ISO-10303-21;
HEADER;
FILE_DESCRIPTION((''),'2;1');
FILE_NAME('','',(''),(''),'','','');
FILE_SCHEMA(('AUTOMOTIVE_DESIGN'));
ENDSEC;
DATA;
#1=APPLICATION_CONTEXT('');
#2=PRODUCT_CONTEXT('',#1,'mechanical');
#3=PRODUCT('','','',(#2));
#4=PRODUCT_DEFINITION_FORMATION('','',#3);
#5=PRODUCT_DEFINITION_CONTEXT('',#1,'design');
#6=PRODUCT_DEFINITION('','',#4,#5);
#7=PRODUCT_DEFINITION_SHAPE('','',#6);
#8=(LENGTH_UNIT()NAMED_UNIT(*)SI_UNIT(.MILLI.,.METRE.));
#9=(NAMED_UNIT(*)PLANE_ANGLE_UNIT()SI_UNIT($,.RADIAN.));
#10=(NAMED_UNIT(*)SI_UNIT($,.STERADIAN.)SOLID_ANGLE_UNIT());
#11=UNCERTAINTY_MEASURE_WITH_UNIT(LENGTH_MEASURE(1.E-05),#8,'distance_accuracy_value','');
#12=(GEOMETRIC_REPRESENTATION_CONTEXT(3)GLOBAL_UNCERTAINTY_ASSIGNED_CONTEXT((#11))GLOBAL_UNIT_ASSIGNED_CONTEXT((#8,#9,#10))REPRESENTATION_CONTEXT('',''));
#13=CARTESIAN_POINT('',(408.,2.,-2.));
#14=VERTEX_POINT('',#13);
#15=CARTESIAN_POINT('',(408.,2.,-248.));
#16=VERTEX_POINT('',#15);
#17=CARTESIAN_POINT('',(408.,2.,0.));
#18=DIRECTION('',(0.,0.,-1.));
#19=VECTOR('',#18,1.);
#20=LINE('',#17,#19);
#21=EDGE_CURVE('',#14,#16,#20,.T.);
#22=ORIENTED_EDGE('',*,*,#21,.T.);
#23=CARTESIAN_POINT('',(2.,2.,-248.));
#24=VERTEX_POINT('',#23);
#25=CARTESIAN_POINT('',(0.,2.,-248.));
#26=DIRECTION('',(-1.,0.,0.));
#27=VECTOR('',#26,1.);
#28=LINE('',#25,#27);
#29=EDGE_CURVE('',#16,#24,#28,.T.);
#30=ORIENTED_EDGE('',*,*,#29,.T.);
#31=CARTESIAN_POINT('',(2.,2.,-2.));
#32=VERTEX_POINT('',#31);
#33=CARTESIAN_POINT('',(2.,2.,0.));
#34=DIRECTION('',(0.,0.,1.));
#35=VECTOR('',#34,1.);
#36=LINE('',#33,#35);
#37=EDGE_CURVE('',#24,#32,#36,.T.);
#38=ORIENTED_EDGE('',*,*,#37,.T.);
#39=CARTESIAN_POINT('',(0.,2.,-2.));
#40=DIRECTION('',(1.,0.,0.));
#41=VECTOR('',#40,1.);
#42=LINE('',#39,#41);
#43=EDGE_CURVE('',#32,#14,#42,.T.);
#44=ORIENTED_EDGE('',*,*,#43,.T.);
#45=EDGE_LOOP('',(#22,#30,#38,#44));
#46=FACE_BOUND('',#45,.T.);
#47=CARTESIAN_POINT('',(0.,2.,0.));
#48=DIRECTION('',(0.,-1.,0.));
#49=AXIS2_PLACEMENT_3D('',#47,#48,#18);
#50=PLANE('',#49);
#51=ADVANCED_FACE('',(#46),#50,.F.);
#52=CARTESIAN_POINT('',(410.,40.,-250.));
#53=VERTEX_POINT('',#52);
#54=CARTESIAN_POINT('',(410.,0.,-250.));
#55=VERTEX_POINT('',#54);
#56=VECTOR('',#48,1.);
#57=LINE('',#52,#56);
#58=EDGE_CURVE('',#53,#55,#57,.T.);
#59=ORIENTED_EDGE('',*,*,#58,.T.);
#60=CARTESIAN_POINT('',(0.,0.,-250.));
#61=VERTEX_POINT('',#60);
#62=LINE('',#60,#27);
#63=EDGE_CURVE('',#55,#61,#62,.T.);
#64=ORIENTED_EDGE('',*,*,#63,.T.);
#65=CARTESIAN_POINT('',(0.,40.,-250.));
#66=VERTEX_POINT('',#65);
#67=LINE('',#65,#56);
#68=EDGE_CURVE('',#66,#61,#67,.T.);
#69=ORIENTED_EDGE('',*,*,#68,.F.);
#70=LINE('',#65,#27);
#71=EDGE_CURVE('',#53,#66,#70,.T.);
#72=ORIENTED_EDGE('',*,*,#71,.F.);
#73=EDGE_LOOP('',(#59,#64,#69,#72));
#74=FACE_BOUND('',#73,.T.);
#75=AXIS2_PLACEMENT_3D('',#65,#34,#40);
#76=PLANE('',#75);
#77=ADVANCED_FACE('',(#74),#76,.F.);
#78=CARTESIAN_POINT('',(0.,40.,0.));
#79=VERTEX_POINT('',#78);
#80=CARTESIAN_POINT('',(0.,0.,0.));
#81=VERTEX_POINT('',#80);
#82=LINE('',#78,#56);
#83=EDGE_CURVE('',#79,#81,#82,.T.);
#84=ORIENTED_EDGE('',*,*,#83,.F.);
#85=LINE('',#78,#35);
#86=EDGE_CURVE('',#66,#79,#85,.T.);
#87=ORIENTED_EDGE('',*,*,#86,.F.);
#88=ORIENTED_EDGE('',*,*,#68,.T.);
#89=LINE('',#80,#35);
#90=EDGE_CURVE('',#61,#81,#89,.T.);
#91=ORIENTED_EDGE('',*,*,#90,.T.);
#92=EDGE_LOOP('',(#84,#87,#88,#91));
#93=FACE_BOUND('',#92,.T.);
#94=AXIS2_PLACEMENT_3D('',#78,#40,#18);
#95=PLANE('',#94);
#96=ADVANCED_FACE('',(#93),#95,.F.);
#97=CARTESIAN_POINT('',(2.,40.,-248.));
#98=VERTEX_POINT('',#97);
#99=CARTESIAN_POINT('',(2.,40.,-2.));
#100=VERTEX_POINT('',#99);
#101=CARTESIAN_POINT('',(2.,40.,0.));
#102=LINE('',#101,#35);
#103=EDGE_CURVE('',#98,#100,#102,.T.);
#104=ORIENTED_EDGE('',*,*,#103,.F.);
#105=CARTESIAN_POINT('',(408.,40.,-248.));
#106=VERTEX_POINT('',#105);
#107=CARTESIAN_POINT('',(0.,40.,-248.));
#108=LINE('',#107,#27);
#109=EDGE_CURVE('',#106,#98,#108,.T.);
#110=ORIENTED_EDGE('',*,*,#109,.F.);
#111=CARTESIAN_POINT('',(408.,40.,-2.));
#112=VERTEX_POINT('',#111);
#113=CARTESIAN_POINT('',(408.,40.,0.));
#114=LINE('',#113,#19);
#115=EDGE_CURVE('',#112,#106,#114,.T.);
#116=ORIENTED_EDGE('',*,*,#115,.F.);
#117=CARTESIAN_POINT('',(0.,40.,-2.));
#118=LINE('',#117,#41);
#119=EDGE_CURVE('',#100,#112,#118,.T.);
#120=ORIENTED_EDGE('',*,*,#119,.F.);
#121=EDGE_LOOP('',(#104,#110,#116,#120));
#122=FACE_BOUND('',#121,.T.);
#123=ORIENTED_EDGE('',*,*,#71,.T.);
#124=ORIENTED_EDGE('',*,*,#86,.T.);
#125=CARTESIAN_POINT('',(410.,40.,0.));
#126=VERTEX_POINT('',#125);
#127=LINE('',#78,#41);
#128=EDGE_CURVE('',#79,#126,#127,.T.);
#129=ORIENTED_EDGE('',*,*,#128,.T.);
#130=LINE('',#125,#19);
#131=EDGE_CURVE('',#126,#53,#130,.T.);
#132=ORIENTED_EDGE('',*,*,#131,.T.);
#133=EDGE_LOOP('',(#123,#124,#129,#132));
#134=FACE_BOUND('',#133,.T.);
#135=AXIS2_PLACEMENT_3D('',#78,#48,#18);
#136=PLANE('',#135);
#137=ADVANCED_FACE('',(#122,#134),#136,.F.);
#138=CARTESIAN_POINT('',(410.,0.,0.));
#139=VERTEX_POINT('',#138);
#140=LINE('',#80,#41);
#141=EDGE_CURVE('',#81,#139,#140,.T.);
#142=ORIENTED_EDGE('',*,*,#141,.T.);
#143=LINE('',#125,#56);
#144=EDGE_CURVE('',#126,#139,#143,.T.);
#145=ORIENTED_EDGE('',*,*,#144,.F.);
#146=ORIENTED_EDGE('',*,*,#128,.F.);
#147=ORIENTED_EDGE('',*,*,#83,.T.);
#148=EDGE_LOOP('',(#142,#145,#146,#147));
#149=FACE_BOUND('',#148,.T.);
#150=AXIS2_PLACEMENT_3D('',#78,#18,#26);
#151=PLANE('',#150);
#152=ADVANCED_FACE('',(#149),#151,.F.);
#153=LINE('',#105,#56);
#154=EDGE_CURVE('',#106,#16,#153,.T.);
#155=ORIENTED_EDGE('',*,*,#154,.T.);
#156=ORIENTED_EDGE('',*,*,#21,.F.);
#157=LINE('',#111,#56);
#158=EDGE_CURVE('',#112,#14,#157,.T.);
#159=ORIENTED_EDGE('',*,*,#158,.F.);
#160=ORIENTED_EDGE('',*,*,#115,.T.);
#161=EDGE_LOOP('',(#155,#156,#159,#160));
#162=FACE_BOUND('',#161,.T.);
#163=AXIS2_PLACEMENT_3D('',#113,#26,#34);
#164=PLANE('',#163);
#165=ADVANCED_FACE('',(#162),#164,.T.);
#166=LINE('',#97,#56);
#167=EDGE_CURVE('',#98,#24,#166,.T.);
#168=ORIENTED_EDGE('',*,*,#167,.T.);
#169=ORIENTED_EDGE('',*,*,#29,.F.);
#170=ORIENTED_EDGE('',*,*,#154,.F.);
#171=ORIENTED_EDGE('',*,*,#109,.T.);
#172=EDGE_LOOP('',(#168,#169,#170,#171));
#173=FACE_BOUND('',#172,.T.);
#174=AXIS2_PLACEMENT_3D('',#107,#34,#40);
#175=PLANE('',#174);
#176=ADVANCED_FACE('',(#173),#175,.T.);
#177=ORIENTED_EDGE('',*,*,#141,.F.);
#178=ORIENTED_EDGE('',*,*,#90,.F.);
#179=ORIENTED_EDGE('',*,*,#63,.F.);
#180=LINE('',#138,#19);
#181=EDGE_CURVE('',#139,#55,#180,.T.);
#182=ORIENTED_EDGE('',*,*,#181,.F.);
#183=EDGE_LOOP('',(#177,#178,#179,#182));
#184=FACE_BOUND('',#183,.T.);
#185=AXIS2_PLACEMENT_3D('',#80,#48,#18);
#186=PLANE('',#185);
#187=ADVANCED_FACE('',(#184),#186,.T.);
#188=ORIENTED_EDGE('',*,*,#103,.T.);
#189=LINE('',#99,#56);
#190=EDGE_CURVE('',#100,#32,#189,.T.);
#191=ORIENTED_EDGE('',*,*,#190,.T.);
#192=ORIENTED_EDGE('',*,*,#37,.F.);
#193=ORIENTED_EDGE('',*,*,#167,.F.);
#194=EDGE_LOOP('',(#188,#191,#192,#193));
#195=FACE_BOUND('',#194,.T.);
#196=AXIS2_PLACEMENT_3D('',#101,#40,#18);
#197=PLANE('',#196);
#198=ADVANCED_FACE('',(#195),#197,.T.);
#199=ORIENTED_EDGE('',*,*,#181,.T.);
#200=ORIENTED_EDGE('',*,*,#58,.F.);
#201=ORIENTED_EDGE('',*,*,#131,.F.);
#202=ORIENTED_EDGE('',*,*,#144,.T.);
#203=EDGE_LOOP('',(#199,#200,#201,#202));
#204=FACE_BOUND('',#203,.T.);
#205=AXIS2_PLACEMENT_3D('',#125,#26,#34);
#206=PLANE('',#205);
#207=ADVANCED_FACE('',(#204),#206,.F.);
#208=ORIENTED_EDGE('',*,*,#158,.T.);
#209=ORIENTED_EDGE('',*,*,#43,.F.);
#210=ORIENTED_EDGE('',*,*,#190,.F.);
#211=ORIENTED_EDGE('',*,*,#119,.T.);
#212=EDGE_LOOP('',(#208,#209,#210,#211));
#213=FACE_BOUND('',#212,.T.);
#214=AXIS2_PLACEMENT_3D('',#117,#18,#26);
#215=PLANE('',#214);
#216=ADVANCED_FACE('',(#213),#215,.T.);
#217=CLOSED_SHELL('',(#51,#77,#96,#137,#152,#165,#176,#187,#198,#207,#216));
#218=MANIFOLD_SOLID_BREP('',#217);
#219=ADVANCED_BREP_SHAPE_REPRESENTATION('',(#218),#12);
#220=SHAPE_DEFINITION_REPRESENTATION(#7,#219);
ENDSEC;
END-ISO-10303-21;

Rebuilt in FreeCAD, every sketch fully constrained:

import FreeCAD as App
import Part
import Sketcher


def faces_at(feature, points):
    """Names of the faces that lie closest to the given points."""
    faces = feature.Shape.Faces
    near = lambda p: min(range(len(faces)), key=lambda i: faces[i].distToShape(Part.Vertex(*p))[0])
    return sorted({f"Face{near(p) + 1}" for p in points})

doc = App.newDocument("Part")
body = doc.addObject("PartDesign::Body", "Body")

sketch1 = body.newObject("Sketcher::SketchObject", "Sketch")
sketch1.AttachmentSupport = (doc.getObject("XZ_Plane"), [""])
sketch1.MapMode = "FlatFace"
sketch1.addGeometry(Part.LineSegment(App.Vector(0, -250, 0), App.Vector(0, 0, 0)), False)
sketch1.addGeometry(Part.LineSegment(App.Vector(0, 0, 0), App.Vector(410, 0, 0)), False)
sketch1.addGeometry(Part.LineSegment(App.Vector(410, 0, 0), App.Vector(410, -250, 0)), False)
sketch1.addGeometry(Part.LineSegment(App.Vector(410, -250, 0), App.Vector(0, -250, 0)), False)
sketch1.addConstraint(Sketcher.Constraint("Coincident", 0, 2, 1, 1))
sketch1.addConstraint(Sketcher.Constraint("Coincident", 1, 2, 2, 1))
sketch1.addConstraint(Sketcher.Constraint("Coincident", 2, 2, 3, 1))
sketch1.addConstraint(Sketcher.Constraint("Coincident", 3, 2, 0, 1))
sketch1.addConstraint(Sketcher.Constraint("Vertical", 0))
sketch1.addConstraint(Sketcher.Constraint("Horizontal", 1))
sketch1.addConstraint(Sketcher.Constraint("Vertical", 2))
sketch1.addConstraint(Sketcher.Constraint("Horizontal", 3))
sketch1.addConstraint(Sketcher.Constraint("Coincident", 0, 2, -1, 1))
sketch1.addConstraint(Sketcher.Constraint("DistanceX", 1, 1, 1, 2, 410.0))
sketch1.addConstraint(Sketcher.Constraint("DistanceY", 0, 1, 0, 2, 250.0))
pad1 = body.newObject("PartDesign::Pad", "Pad")
pad1.Profile = sketch1
pad1.Length = 40
pad1.Reversed = True
doc.recompute()

thickness = body.newObject("PartDesign::Thickness", "Thickness")
thickness.Base = (pad1, faces_at(pad1, [(205, 40, -125)]))
thickness.Value = 2
thickness.Reversed = True
thickness.Join = "Intersection"

doc.recompute()
